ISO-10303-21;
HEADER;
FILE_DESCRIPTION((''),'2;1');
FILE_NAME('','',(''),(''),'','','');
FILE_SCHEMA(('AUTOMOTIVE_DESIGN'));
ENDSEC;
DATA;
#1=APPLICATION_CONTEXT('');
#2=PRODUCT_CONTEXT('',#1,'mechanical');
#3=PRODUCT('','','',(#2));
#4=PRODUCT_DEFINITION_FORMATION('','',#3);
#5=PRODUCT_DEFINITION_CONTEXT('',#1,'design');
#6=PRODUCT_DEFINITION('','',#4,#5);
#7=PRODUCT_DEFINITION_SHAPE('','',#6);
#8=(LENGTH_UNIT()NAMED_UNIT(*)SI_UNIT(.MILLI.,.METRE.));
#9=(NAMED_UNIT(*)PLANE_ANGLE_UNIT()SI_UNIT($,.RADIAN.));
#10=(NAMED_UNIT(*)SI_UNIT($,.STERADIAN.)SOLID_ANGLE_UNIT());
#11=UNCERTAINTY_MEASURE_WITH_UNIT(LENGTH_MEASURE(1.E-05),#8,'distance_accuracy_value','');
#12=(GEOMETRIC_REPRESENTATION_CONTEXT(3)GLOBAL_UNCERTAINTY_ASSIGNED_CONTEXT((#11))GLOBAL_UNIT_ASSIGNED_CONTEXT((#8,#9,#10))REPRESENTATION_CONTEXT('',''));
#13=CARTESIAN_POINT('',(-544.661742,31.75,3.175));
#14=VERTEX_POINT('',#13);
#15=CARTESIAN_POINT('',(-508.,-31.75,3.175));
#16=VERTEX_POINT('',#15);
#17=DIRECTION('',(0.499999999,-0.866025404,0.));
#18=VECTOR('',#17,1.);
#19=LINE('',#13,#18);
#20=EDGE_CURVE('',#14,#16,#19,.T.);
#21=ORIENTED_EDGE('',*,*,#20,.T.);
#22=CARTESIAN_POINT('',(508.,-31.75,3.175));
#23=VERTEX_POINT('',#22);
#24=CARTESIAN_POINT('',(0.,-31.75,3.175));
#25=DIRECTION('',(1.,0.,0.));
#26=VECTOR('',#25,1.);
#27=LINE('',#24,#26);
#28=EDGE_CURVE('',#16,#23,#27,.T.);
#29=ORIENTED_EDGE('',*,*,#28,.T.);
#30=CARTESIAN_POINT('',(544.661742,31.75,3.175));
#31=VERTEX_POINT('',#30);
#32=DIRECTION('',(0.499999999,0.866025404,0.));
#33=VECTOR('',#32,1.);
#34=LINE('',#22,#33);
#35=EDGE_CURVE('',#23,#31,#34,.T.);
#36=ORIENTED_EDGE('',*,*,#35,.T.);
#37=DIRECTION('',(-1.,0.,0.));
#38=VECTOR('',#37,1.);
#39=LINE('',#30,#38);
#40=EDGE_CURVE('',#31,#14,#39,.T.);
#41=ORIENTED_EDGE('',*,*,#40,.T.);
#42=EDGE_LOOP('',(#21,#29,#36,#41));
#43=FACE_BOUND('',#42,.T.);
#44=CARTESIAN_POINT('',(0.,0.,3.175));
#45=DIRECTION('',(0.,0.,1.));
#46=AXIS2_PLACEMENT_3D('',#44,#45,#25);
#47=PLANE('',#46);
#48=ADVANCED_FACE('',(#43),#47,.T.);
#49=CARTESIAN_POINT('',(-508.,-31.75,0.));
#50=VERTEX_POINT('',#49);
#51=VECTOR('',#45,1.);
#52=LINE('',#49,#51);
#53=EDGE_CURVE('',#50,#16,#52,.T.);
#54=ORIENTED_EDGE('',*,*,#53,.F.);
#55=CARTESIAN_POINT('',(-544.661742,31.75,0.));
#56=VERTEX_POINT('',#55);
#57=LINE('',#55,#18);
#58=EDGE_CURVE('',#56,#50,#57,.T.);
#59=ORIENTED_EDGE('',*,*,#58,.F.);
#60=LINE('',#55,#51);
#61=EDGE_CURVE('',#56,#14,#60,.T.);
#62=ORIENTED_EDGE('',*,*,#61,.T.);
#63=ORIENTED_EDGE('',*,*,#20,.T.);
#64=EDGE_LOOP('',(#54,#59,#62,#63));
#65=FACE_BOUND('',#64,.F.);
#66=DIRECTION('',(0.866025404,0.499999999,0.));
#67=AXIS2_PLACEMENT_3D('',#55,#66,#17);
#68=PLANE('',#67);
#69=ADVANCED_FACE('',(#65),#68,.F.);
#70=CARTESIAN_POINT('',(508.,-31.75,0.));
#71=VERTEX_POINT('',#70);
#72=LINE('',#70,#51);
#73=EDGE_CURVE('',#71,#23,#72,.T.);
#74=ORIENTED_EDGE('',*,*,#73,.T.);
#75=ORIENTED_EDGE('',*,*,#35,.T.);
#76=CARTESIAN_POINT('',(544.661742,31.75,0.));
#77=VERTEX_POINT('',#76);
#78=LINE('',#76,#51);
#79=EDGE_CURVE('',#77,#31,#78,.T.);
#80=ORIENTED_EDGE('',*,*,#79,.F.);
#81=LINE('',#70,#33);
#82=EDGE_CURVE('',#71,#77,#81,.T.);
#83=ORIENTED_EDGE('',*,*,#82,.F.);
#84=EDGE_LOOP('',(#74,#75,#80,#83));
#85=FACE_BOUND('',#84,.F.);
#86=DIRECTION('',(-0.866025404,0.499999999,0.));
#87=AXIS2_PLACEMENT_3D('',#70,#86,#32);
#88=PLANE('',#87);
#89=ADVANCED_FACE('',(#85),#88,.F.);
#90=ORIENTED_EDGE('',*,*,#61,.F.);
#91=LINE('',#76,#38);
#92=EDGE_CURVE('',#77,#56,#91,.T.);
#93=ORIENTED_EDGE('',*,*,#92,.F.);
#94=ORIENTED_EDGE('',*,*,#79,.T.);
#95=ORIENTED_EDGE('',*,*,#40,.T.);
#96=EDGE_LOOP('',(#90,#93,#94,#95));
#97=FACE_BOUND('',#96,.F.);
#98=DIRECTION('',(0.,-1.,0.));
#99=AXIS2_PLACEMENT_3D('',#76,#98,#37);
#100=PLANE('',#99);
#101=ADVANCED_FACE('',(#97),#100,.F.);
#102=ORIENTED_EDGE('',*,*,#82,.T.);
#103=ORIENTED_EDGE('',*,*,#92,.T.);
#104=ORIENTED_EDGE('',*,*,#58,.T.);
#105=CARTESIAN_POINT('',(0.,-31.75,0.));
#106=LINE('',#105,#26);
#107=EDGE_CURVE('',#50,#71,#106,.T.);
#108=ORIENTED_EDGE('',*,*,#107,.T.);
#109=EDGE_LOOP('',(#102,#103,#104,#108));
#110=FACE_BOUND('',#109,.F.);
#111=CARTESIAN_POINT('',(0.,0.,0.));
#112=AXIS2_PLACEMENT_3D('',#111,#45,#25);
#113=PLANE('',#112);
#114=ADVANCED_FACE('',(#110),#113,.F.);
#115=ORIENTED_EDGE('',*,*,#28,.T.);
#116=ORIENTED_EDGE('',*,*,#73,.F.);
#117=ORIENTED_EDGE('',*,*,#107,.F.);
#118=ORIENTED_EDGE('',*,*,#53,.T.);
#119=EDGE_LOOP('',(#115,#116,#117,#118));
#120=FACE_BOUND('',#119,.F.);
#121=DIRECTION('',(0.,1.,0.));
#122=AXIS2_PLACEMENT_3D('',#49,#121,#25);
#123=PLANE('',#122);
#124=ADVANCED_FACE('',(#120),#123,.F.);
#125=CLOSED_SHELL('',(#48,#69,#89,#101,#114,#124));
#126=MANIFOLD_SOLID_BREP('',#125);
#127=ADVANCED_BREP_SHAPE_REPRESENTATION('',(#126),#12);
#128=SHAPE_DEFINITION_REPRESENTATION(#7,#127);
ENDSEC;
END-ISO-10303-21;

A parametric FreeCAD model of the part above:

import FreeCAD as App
import Part
import Sketcher
Q = App.Units.Quantity


def add_polygon(sketch, points):
    """Adds a closed chain of lines whose ends are joined by coincident constraints."""
    first, n = sketch.GeometryCount, len(points)
    for a, b in zip(points, points[1:] + points[:1]):
        sketch.addGeometry(Part.LineSegment(App.Vector(*a, 0), App.Vector(*b, 0)), False)
    for i in range(n):
        sketch.addConstraint(Sketcher.Constraint("Coincident", first + i, 2, first + (i + 1) % n, 1))

doc = App.newDocument("Part")
params = doc.addObject("Spreadsheet::Sheet", "Params")
for row, (alias, value) in enumerate([
    ("sketch1_width", "40 in"),
    ("pad1_length", "0.125 in"),
], start=1):
    params.set(f"A{row}", alias)
    params.set(f"B{row}", "=" + value)
    params.setAlias(f"B{row}", alias)

body = doc.addObject("PartDesign::Body", "Body")

sketch1 = body.newObject("Sketcher::SketchObject", "Sketch")
sketch1.AttachmentSupport = (doc.getObject("XY_Plane"), [""])
sketch1.MapMode = "FlatFace"
add_polygon(sketch1, [(-508, -32), (508, -32), (545, 32), (-545, 32)])
sketch1.addConstraint([
    Sketcher.Constraint("Horizontal", 0),
    Sketcher.Constraint("Horizontal", 2),
    Sketcher.Constraint("Equal", 1, 3),
    Sketcher.Constraint("DistanceX", 0, 1, 0, 2, Q("40 in")),
    Sketcher.Constraint("DistanceX", -1, 1, 0, 2, Q("20 in")),
    Sketcher.Constraint("Angle", 1, Q("60 deg")),
    Sketcher.Constraint("DistanceY", 0, 2, 1, 2, Q("2.5 in")),
    Sketcher.Constraint("DistanceY", 0, 2, -1, 1, Q("1.25 in")),
])
sketch1.setExpression("Constraints[7]", "Params.sketch1_width")
pad1 = body.newObject("PartDesign::Pad", "Pad")
pad1.Profile = sketch1
pad1.setExpression("Length", "Params.pad1_length")

doc.recompute()
